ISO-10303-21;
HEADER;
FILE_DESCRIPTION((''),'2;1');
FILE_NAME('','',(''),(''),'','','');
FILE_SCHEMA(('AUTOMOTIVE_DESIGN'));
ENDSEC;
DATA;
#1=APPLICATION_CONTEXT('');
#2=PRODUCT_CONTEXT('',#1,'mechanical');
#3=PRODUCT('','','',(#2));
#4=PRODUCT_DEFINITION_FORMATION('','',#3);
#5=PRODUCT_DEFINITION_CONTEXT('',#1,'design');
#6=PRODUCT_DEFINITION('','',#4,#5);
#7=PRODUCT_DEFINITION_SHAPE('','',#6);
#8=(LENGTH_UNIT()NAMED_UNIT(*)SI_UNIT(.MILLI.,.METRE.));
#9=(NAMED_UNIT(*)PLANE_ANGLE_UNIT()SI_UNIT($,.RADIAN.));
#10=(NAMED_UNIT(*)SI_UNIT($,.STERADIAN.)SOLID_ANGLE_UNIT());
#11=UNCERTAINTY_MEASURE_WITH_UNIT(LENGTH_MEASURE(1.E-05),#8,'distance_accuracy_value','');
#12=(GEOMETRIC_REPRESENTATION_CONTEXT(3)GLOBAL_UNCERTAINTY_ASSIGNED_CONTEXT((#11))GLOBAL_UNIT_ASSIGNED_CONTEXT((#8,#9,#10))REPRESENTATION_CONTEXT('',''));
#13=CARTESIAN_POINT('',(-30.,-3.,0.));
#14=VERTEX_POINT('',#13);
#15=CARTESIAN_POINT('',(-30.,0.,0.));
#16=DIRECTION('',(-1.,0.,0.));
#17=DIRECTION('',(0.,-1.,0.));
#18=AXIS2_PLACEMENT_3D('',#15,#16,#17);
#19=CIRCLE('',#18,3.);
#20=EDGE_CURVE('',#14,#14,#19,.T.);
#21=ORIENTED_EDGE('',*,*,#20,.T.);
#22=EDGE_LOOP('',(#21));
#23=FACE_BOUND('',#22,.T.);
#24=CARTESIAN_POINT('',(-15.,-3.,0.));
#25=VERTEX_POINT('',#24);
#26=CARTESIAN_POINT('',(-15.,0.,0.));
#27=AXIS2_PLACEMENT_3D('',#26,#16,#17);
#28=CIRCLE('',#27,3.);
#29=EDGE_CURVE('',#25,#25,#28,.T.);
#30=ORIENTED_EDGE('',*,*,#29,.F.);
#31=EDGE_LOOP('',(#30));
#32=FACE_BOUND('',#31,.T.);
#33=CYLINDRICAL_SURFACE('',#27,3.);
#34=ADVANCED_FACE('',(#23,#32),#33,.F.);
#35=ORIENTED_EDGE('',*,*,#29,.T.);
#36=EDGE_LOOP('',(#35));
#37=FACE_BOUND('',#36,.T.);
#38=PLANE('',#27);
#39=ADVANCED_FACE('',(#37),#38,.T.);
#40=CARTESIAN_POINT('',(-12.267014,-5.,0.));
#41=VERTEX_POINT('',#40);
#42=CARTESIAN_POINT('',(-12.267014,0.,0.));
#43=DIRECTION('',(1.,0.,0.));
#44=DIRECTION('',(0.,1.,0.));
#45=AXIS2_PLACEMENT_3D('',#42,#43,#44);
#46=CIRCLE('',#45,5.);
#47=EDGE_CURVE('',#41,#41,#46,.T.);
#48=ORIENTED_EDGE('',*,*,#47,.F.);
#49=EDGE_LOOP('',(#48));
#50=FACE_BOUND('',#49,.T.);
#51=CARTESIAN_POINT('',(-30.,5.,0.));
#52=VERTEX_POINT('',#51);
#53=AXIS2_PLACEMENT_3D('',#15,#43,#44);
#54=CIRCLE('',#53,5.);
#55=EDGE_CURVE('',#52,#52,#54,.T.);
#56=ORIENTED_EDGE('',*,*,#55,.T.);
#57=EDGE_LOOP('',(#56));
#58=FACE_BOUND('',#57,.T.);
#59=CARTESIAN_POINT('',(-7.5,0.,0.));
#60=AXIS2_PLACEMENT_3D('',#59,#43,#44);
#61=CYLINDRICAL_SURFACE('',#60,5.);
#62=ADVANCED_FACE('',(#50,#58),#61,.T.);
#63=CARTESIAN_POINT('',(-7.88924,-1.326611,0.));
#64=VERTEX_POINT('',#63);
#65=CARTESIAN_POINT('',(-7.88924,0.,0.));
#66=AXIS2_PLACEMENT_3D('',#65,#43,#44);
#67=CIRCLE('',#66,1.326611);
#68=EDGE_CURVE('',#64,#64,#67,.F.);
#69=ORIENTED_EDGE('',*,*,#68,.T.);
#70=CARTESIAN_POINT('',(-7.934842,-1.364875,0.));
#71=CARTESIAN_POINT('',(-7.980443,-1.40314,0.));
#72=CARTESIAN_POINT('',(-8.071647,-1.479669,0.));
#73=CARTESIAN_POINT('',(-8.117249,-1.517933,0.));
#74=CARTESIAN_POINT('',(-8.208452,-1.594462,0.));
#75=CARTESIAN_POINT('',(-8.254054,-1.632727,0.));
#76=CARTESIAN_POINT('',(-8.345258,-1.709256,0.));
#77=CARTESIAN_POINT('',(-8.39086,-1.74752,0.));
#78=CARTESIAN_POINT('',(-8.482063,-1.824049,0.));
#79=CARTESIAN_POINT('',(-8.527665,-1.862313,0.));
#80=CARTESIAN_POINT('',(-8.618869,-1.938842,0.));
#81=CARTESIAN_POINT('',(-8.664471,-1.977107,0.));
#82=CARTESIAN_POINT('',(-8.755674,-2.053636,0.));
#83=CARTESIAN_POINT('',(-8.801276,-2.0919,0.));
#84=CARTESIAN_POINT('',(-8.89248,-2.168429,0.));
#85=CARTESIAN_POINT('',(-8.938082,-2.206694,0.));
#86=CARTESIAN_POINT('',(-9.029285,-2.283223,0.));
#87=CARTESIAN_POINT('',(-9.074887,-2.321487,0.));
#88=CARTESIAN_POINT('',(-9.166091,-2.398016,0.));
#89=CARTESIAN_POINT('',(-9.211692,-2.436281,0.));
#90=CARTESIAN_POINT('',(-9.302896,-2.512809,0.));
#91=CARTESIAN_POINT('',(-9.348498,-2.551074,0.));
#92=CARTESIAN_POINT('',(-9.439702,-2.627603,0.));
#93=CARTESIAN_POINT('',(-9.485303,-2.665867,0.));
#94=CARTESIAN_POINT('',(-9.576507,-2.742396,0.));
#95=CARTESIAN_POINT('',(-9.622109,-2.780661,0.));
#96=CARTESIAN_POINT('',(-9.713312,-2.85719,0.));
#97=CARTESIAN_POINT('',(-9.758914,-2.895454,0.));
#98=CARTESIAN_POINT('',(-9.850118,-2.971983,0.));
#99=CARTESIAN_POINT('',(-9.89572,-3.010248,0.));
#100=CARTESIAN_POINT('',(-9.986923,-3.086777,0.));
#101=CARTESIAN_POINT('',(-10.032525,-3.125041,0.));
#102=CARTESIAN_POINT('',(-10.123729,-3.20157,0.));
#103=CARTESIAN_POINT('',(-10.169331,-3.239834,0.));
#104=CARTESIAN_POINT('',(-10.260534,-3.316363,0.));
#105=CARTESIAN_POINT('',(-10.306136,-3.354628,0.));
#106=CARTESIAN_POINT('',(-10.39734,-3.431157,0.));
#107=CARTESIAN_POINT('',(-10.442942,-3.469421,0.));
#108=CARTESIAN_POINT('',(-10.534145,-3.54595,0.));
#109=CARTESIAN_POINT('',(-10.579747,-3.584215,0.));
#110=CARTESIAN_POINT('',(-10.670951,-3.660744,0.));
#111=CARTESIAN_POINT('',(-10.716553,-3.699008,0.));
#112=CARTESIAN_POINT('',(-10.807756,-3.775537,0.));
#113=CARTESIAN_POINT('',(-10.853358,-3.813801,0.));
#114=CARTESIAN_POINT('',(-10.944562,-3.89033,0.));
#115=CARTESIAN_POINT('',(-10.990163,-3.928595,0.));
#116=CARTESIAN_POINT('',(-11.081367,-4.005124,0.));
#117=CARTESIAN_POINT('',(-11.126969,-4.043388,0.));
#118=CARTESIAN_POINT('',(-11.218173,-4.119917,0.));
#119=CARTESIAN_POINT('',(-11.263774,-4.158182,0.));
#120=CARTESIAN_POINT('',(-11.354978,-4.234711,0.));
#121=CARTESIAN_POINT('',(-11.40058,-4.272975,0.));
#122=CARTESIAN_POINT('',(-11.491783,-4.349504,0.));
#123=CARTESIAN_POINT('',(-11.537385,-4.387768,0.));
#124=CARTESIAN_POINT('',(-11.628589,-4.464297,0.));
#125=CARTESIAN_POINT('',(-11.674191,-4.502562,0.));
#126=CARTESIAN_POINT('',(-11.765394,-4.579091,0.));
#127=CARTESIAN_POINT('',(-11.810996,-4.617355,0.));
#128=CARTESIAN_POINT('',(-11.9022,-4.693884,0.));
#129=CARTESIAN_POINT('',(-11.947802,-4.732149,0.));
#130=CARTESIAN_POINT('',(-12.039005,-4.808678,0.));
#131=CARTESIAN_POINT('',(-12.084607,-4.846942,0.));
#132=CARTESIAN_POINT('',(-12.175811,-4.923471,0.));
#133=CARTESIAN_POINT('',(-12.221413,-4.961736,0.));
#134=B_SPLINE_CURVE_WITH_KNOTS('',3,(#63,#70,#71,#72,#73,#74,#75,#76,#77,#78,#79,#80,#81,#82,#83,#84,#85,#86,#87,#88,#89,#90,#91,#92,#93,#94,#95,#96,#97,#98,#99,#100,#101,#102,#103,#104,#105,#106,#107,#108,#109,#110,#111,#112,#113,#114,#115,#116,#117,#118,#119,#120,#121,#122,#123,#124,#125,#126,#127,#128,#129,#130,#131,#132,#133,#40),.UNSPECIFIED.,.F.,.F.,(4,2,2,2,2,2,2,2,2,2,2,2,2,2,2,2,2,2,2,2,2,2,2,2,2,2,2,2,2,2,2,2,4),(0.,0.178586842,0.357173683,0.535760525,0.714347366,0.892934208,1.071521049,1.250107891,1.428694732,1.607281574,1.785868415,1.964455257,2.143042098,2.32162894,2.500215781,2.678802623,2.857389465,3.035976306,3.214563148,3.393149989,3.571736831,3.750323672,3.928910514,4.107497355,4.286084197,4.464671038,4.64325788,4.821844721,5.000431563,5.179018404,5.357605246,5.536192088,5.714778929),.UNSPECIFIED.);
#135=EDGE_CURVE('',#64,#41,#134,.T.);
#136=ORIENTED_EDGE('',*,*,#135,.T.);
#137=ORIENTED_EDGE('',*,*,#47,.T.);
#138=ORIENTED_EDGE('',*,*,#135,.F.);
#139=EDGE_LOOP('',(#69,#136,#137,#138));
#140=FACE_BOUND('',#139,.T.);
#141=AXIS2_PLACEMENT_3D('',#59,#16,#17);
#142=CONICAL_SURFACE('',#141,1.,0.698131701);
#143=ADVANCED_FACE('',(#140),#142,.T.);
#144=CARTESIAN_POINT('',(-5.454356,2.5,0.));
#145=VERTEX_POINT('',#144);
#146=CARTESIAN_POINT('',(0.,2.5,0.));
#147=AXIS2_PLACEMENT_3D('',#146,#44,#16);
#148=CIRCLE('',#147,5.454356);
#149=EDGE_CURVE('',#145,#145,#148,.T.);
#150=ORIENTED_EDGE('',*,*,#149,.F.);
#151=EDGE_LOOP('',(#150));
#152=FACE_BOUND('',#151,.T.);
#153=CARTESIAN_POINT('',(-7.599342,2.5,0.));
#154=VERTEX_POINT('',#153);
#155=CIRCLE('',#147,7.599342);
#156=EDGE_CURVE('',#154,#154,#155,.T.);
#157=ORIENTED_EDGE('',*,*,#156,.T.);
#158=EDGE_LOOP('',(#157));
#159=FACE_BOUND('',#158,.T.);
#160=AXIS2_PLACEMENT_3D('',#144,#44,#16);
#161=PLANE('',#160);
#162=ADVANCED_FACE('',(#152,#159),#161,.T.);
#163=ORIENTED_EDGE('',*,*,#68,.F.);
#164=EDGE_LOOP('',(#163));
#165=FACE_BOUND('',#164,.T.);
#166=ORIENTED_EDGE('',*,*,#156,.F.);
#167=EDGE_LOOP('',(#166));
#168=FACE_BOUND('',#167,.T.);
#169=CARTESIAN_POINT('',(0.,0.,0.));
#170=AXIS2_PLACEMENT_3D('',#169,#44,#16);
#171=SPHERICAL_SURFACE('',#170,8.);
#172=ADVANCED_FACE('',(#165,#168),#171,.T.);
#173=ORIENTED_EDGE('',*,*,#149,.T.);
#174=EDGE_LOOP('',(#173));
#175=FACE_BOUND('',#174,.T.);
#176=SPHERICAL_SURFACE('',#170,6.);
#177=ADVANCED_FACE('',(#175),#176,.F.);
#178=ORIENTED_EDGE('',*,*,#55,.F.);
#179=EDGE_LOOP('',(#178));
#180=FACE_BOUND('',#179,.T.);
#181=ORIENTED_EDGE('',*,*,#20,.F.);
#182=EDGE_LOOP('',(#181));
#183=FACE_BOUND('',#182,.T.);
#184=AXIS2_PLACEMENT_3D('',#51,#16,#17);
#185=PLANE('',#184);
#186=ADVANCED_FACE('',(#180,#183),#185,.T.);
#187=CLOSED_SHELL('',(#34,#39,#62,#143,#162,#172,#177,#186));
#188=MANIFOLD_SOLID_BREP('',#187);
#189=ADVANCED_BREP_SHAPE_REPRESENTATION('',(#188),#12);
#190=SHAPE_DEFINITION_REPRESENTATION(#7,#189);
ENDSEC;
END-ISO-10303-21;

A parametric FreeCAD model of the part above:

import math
import FreeCAD as App
import Part
import Sketcher

V = App.Vector
Q = App.Units.Quantity

doc = App.newDocument("Part")
body = doc.addObject("PartDesign::Body", "Body")

# Sketch on XY plane
sketch1 = body.newObject("Sketcher::SketchObject", "Sketch")
sketch1.AttachmentSupport = (doc.getObject("XY_Plane"), [""])
sketch1.MapMode = "FlatFace"
sketch1.addGeometry(Part.LineSegment(V(-5.5, 2.5, 0), V(-7.6, 2.5, 0)), False)
sketch1.addGeometry(Part.ArcOfCircle(Part.Circle(V(0, 0, 0), V(0, 0, 1), 8), math.radians(162), math.radians(270)), False)
sketch1.addGeometry(Part.LineSegment(V(0, -8, 0), V(0, -6, 0)), False)
sketch1.addGeometry(Part.ArcOfCircle(Part.Circle(V(0, 0, 0), V(0, 0, 1), 6), math.radians(155), math.radians(270)), False)
sketch1.addConstraint(Sketcher.Constraint("Coincident", 0, 2, 1, 1))
sketch1.addConstraint(Sketcher.Constraint("Coincident", 1, 2, 2, 1))
sketch1.addConstraint(Sketcher.Constraint("Coincident", 2, 2, 3, 2))
sketch1.addConstraint(Sketcher.Constraint("Coincident", 3, 1, 0, 1))
sketch1.addConstraint(Sketcher.Constraint("Horizontal", 0))
sketch1.addConstraint(Sketcher.Constraint("Vertical", 2))
sketch1.addConstraint(Sketcher.Constraint("Coincident", 1, 3, -1, 1))
sketch1.addConstraint(Sketcher.Constraint("Coincident", 3, 3, -1, 1))
sketch1.addConstraint(Sketcher.Constraint("PointOnObject", 1, 2, -2))
sketch1.addConstraint(Sketcher.Constraint("Radius", 1, 8.0))
sketch1.addConstraint(Sketcher.Constraint("Radius", 3, 6.0))
sketch1.addConstraint(Sketcher.Constraint("DistanceY", -1, 1, 0, 2, 2.5))
revolution = body.newObject("PartDesign::Revolution", "Revolution")
revolution.Profile = sketch1
revolution.ReferenceAxis = (sketch1, ["V_Axis"])
revolution.Angle = 360

# Sketch on XY plane
sketch2 = body.newObject("Sketcher::SketchObject", "Sketch001")
sketch2.AttachmentSupport = (doc.getObject("XY_Plane"), [""])
sketch2.MapMode = "FlatFace"
sketch2.addGeometry(Part.LineSegment(V(-7.5, 0, 0), V(-7.5, 1, 0)), False)
sketch2.addGeometry(Part.LineSegment(V(-7.5, 1, 0), V(-12.3, 5, 0)), False)
sketch2.addGeometry(Part.LineSegment(V(-12.3, 5, 0), V(-30, 5, 0)), False)
sketch2.addGeometry(Part.LineSegment(V(-30, 5, 0), V(-30, 0, 0)), False)
sketch2.addGeometry(Part.LineSegment(V(-30, 0, 0), V(-7.5, 0, 0)), False)
sketch2.addConstraint(Sketcher.Constraint("Coincident", 0, 2, 1, 1))
sketch2.addConstraint(Sketcher.Constraint("Coincident", 1, 2, 2, 1))
sketch2.addConstraint(Sketcher.Constraint("Coincident", 2, 2, 3, 1))
sketch2.addConstraint(Sketcher.Constraint("Coincident", 3, 2, 4, 1))
sketch2.addConstraint(Sketcher.Constraint("Coincident", 4, 2, 0, 1))
sketch2.addConstraint(Sketcher.Constraint("Vertical", 0))
sketch2.addConstraint(Sketcher.Constraint("Horizontal", 2))
sketch2.addConstraint(Sketcher.Constraint("Vertical", 3))
sketch2.addConstraint(Sketcher.Constraint("Horizontal", 4))
sketch2.addConstraint(Sketcher.Constraint("PointOnObject", 3, 2, -1))
sketch2.addConstraint(Sketcher.Constraint("DistanceY", 0, 1, 0, 2, 1.0))
sketch2.addConstraint(Sketcher.Constraint("DistanceY", 3, 2, 3, 1, 5.0))
sketch2.addConstraint(Sketcher.Constraint("Angle", 1, Q("140 deg")))
sketch2.addConstraint(Sketcher.Constraint("DistanceX", 4, 1, 4, 2, 22.5))
sketch2.addConstraint(Sketcher.Constraint("DistanceX", 2, 2, -1, 1, 30.0))
revolution2 = body.newObject("PartDesign::Revolution", "Revolution001")
revolution2.Profile = sketch2
revolution2.ReferenceAxis = (sketch2, ["H_Axis"])
revolution2.Angle = 360

# Sketch on YZ plane
sketch3 = body.newObject("Sketcher::SketchObject", "Sketch002")
sketch3.AttachmentSupport = (doc.getObject("YZ_Plane"), [""])
sketch3.MapMode = "FlatFace"
sketch3.AttachmentOffset = App.Placement(V(0, 0, -30), App.Rotation())
sketch3.addGeometry(Part.Circle(V(0, 0, 0), V(0, 0, 1), 3), False)
sketch3.addConstraint(Sketcher.Constraint("Coincident", 0, 3, -1, 1))
sketch3.addConstraint(Sketcher.Constraint("Diameter", 0, 6.0))
pocket1 = body.newObject("PartDesign::Pocket", "Pocket")
pocket1.Profile = sketch3
pocket1.Length = 15
pocket1.Reversed = True

doc.recompute()
